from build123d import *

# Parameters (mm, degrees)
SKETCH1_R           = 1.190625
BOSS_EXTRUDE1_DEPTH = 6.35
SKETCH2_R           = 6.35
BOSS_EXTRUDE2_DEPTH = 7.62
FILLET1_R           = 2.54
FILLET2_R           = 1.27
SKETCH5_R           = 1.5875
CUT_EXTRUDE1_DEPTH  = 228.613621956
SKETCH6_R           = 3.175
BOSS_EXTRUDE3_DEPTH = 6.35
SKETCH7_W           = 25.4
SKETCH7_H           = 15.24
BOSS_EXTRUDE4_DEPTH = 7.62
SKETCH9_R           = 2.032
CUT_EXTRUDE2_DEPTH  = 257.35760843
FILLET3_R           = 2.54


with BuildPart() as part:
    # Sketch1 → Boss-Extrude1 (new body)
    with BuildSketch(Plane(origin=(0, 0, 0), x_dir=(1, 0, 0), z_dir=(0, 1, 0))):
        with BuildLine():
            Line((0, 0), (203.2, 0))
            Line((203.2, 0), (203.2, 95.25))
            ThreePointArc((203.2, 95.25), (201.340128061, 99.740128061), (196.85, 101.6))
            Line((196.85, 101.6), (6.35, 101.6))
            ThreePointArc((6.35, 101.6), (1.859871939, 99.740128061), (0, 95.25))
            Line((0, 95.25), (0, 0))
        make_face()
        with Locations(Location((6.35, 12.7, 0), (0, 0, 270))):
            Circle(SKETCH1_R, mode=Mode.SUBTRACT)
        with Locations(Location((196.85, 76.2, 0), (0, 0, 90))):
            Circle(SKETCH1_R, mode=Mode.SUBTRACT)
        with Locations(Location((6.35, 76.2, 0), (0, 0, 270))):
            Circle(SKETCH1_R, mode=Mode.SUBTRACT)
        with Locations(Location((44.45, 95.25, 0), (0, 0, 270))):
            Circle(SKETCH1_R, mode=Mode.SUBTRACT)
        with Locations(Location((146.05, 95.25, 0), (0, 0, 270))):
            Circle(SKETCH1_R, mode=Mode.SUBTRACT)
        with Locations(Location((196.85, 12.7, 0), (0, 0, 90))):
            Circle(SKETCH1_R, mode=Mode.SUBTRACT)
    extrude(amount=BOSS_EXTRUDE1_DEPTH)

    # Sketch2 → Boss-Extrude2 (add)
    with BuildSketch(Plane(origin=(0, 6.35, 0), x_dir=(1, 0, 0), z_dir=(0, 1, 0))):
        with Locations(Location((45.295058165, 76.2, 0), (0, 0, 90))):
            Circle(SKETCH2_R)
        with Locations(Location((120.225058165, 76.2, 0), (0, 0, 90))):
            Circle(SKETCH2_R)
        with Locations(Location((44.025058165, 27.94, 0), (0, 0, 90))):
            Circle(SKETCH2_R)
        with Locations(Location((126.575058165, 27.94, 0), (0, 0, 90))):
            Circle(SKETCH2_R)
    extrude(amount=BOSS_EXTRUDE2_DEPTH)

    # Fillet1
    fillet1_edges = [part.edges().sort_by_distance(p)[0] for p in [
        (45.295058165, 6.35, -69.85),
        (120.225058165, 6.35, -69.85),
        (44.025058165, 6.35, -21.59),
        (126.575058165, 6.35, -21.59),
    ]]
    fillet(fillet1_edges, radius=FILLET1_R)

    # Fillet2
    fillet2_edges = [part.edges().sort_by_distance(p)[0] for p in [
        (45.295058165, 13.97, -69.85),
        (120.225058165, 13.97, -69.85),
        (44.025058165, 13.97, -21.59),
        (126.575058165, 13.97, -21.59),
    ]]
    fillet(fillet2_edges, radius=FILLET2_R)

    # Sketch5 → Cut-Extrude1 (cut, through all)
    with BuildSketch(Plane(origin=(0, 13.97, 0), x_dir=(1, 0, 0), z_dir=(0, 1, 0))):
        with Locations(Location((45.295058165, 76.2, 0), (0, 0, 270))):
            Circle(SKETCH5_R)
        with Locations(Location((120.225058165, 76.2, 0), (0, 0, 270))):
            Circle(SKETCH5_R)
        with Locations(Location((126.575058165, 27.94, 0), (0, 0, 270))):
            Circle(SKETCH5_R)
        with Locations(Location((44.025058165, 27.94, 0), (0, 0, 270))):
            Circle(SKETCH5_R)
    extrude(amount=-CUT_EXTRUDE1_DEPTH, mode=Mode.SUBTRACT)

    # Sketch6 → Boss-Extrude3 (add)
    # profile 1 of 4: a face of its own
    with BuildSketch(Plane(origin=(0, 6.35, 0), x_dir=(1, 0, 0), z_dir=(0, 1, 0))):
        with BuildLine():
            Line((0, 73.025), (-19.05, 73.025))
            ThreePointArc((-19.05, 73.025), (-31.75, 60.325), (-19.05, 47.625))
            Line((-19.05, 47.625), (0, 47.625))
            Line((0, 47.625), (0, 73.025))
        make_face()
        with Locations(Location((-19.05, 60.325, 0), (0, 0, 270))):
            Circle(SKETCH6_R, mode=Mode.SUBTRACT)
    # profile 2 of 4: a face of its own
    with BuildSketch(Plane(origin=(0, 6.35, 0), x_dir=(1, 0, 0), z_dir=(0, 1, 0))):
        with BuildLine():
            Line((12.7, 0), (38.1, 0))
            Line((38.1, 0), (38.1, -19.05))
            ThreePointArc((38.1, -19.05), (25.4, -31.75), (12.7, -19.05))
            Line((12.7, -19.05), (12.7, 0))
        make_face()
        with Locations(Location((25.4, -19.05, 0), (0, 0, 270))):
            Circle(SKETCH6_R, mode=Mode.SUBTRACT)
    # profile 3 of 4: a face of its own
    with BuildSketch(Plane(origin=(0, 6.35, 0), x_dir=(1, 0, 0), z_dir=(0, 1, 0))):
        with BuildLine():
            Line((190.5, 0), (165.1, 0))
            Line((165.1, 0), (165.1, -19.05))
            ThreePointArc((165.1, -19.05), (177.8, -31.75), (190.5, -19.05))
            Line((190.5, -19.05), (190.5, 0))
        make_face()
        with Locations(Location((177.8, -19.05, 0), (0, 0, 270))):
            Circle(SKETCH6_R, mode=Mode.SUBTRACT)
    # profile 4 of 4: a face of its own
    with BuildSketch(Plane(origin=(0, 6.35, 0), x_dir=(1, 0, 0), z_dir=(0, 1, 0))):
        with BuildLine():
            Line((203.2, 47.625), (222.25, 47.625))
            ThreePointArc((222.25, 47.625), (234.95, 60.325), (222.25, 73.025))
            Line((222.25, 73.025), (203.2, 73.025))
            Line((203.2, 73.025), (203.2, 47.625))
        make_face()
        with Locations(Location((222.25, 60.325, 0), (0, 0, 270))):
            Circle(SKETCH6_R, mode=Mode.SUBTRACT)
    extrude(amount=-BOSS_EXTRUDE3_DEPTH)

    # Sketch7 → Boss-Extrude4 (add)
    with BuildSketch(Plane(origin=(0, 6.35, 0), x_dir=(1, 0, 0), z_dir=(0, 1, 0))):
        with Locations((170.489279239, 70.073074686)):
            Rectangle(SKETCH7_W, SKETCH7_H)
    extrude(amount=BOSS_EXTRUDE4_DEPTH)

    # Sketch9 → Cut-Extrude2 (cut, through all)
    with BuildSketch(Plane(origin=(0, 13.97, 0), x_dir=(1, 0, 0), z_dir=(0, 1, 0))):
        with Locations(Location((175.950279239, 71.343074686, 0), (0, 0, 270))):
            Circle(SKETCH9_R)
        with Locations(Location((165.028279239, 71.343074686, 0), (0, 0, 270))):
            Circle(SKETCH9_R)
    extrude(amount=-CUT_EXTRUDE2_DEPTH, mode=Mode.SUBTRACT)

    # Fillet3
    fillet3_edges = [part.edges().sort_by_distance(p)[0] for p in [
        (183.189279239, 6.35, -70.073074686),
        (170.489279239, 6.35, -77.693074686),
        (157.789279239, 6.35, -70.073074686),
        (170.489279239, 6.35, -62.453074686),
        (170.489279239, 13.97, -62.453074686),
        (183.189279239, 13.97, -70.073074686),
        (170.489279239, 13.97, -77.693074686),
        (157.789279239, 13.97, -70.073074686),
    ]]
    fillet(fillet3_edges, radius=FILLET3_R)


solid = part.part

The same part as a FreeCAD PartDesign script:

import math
import FreeCAD as App
import Part
import Sketcher

V = App.Vector
Q = App.Units.Quantity


def edges_at(feature, points):
    """Names of the edges that pass closest to the given points."""
    edges = feature.Shape.Edges
    near = lambda p: min(range(len(edges)), key=lambda i: edges[i].distToShape(Part.Vertex(*p))[0])
    return sorted({f"Edge{near(p) + 1}" for p in points})


def add_polygon(sketch, points):
    """Adds a closed chain of lines whose ends are joined by coincident constraints."""
    first, n = sketch.GeometryCount, len(points)
    for a, b in zip(points, points[1:] + points[:1]):
        sketch.addGeometry(Part.LineSegment(App.Vector(*a, 0), App.Vector(*b, 0)), False)
    for i in range(n):
        sketch.addConstraint(Sketcher.Constraint("Coincident", first + i, 2, first + (i + 1) % n, 1))

doc = App.newDocument("Part")
body = doc.addObject("PartDesign::Body", "Body")

sketch1 = body.newObject("Sketcher::SketchObject", "Sketch")
sketch1.AttachmentSupport = (doc.getObject("XZ_Plane"), [""])
sketch1.MapMode = "FlatFace"
sketch1.addGeometry([
    Part.LineSegment(V(0, 0, 0), V(203.2, 0, 0)),
    Part.LineSegment(V(203.2, 0, 0), V(203.2, -95.25, 0)),
    Part.ArcOfCircle(Part.Circle(V(196.85, -95.25, 0), V(0, 0, 1), 6.35), math.radians(-90), math.radians(0)),
    Part.LineSegment(V(196.85, -101.6, 0), V(6.35, -101.6, 0)),
    Part.ArcOfCircle(Part.Circle(V(6.35, -95.25, 0), V(0, 0, 1), 6.35), math.radians(180), math.radians(270)),
    Part.LineSegment(V(0, -95.25, 0), V(0, 0, 0)),
    Part.Circle(V(6.35, -12.7, 0), V(0, 0, 1), 1.190625),
    Part.Circle(V(196.85, -12.7, 0), V(0, 0, 1), 1.190625),
    Part.Circle(V(6.35, -76.2, 0), V(0, 0, 1), 1.190625),
    Part.Circle(V(44.45, -95.25, 0), V(0, 0, 1), 1.190625),
    Part.Circle(V(146.05, -95.25, 0), V(0, 0, 1), 1.190625),
    Part.Circle(V(196.85, -76.2, 0), V(0, 0, 1), 1.190625),
], False)
sketch1.addConstraint([
    Sketcher.Constraint("Coincident", 0, 2, 1, 1),
    Sketcher.Constraint("Tangent", 1, 2, 2, 2),
    Sketcher.Constraint("Tangent", 2, 1, 3, 1),
    Sketcher.Constraint("Tangent", 3, 2, 4, 2),
    Sketcher.Constraint("Tangent", 4, 1, 5, 1),
    Sketcher.Constraint("Coincident", 5, 2, 0, 1),
    Sketcher.Constraint("Horizontal", 0),
    Sketcher.Constraint("Vertical", 1),
    Sketcher.Constraint("Horizontal", 3),
    Sketcher.Constraint("Vertical", 5),
    Sketcher.Constraint("Coincident", 5, 2, -1, 1),
    Sketcher.Constraint("Equal", 2, 4),
    Sketcher.Constraint("Equal", 6, 7),
    Sketcher.Constraint("Equal", 7, 8),
    Sketcher.Constraint("Equal", 8, 9),
    Sketcher.Constraint("Equal", 9, 10),
    Sketcher.Constraint("Equal", 10, 11),
    Sketcher.Constraint("Horizontal", 6, 3, 7, 3),
    Sketcher.Constraint("Horizontal", 4, 3, 9, 3),
    Sketcher.Constraint("Horizontal", 9, 3, 10, 3),
    Sketcher.Constraint("Horizontal", 8, 3, 11, 3),
    Sketcher.Constraint("Vertical", 4, 3, 6, 3),
    Sketcher.Constraint("Vertical", 2, 3, 7, 3),
    Sketcher.Constraint("Vertical", 6, 3, 8, 3),
    Sketcher.Constraint("Vertical", 7, 3, 11, 3),
    Sketcher.Constraint("DistanceX", 0, 1, 0, 2, Q("8 in")),
    Sketcher.Constraint("Radius", 2, Q("0.25 in")),
    Sketcher.Constraint("Diameter", 6, Q("0.09375 in")),
    Sketcher.Constraint("DistanceY", 8, 3, -1, 1, Q("3 in")),
    Sketcher.Constraint("DistanceY", 2, 1, -1, 1, Q("4 in")),
    Sketcher.Constraint("DistanceX", 9, 3, 2, 3, Q("6 in")),
    Sketcher.Constraint("DistanceX", 10, 3, 2, 3, Q("2 in")),
    Sketcher.Constraint("DistanceY", 6, 3, -1, 1, Q("0.5 in")),
])
pad1 = body.newObject("PartDesign::Pad", "Pad")
pad1.Profile = sketch1
pad1.Length = Q("0.25 in")
pad1.Reversed = True

sketch2 = body.newObject("Sketcher::SketchObject", "Sketch001")
sketch2.AttachmentSupport = (doc.getObject("XZ_Plane"), [""])
sketch2.MapMode = "FlatFace"
sketch2.AttachmentOffset = App.Placement(V(0, 0, -0.25 * 25.4), App.Rotation())
sketch2.addGeometry([
    Part.Circle(V(45.295058, -76.2, 0), V(0, 0, 1), 6.35),
    Part.Circle(V(120.225058, -76.2, 0), V(0, 0, 1), 6.35),
    Part.Circle(V(44.025058, -27.94, 0), V(0, 0, 1), 6.35),
    Part.Circle(V(126.575058, -27.94, 0), V(0, 0, 1), 6.35),
], False)
sketch2.addConstraint([
    Sketcher.Constraint("Equal", 0, 1),
    Sketcher.Constraint("Equal", 1, 2),
    Sketcher.Constraint("Equal", 2, 3),
    Sketcher.Constraint("Horizontal", 0, 3, 1, 3),
    Sketcher.Constraint("Horizontal", 2, 3, 3, 3),
    Sketcher.Constraint("Diameter", 0, Q("0.5 in")),
    Sketcher.Constraint("DistanceY", 0, 3, -1, 1, Q("3 in")),
    Sketcher.Constraint("DistanceX", 2, 3, 1, 3, Q("3 in")),
    Sketcher.Constraint("DistanceY", 2, 3, -1, 1, Q("1.1 in")),
    Sketcher.Constraint("DistanceX", 0, 3, 3, 3, Q("3.2 in")),
    Sketcher.Constraint("DistanceX", 0, 3, 1, 3, Q("2.95 in")),
    Sketcher.Constraint("DistanceX", -1, 1, 0, 3, Q("45.295058 mm")),
])
pad2 = body.newObject("PartDesign::Pad", "Pad001")
pad2.Profile = sketch2
pad2.Length = Q("0.3 in")
pad2.Reversed = True
doc.recompute()

fillet = body.newObject("PartDesign::Fillet", "Fillet")
fillet.Base = (pad2, edges_at(pad2, [
    (45.295, 6.35, -69.85),
    (120.225, 6.35, -69.85),
    (44.025, 6.35, -21.59),
    (126.575, 6.35, -21.59),
]))
fillet.Radius = Q("0.1 in")
doc.recompute()

fillet2 = body.newObject("PartDesign::Fillet", "Fillet001")
fillet2.Base = (fillet, edges_at(fillet, [
    (45.295, 13.97, -69.85),
    (120.225, 13.97, -69.85),
    (44.025, 13.97, -21.59),
    (126.575, 13.97, -21.59),
]))
fillet2.Radius = Q("0.05 in")

sketch3 = body.newObject("Sketcher::SketchObject", "Sketch002")
sketch3.AttachmentSupport = (doc.getObject("XZ_Plane"), [""])
sketch3.MapMode = "FlatFace"
sketch3.AttachmentOffset = App.Placement(V(0, 0, -0.55 * 25.4), App.Rotation())
sketch3.addGeometry([
    Part.Circle(V(45.295058, -76.2, 0), V(0, 0, 1), 1.5875),
    Part.Circle(V(120.225058, -76.2, 0), V(0, 0, 1), 1.5875),
    Part.Circle(V(126.575058, -27.94, 0), V(0, 0, 1), 1.5875),
    Part.Circle(V(44.025058, -27.94, 0), V(0, 0, 1), 1.5875),
], False)
sketch3.addConstraint([
    Sketcher.Constraint("Equal", 0, 1),
    Sketcher.Constraint("Equal", 1, 2),
    Sketcher.Constraint("Equal", 2, 3),
    Sketcher.Constraint("Horizontal", 0, 3, 1, 3),
    Sketcher.Constraint("Horizontal", 2, 3, 3, 3),
    Sketcher.Constraint("Diameter", 0, Q("0.125 in")),
    Sketcher.Constraint("DistanceY", 0, 3, -1, 1, Q("3 in")),
    Sketcher.Constraint("DistanceX", 3, 3, 1, 3, Q("3 in")),
    Sketcher.Constraint("DistanceY", 2, 3, -1, 1, Q("1.1 in")),
    Sketcher.Constraint("DistanceX", 0, 3, 2, 3, Q("3.2 in")),
    Sketcher.Constraint("DistanceX", 0, 3, 1, 3, Q("2.95 in")),
    Sketcher.Constraint("DistanceX", -1, 1, 0, 3, Q("45.295058 mm")),
])
pocket1 = body.newObject("PartDesign::Pocket", "Pocket")
pocket1.Profile = sketch3
pocket1.Type = "ThroughAll"
pocket1.Reversed = True

sketch4 = body.newObject("Sketcher::SketchObject", "Sketch003")
sketch4.AttachmentSupport = (doc.getObject("XZ_Plane"), [""])
sketch4.MapMode = "FlatFace"
sketch4.AttachmentOffset = App.Placement(V(0, 0, -0.25 * 25.4), App.Rotation())
sketch4.addGeometry([
    Part.LineSegment(V(0, -73.025, 0), V(-19.05, -73.025, 0)),
    Part.ArcOfCircle(Part.Circle(V(-19.05, -60.325, 0), V(0, 0, 1), 12.7), math.radians(90), math.radians(270)),
    Part.LineSegment(V(-19.05, -47.625, 0), V(0, -47.625, 0)),
    Part.LineSegment(V(0, -47.625, 0), V(0, -73.025, 0)),
    Part.Circle(V(-19.05, -60.325, 0), V(0, 0, 1), 3.175),
    Part.LineSegment(V(38.1, 0, 0), V(12.7, 0, 0)),
    Part.LineSegment(V(12.7, 0, 0), V(12.7, 19.05, 0)),
    Part.ArcOfCircle(Part.Circle(V(25.4, 19.05, 0), V(0, 0, 1), 12.7), math.radians(0), math.radians(180)),
    Part.LineSegment(V(38.1, 19.05, 0), V(38.1, 0, 0)),
    Part.Circle(V(25.4, 19.05, 0), V(0, 0, 1), 3.175),
    Part.LineSegment(V(190.5, 0, 0), V(165.1, 0, 0)),
    Part.LineSegment(V(165.1, 0, 0), V(165.1, 19.05, 0)),
    Part.ArcOfCircle(Part.Circle(V(177.8, 19.05, 0), V(0, 0, 1), 12.7), math.radians(0), math.radians(180)),
    Part.LineSegment(V(190.5, 19.05, 0), V(190.5, 0, 0)),
    Part.Circle(V(177.8, 19.05, 0), V(0, 0, 1), 3.175),
    Part.LineSegment(V(203.2, -47.625, 0), V(222.25, -47.625, 0)),
    Part.ArcOfCircle(Part.Circle(V(222.25, -60.325, 0), V(0, 0, 1), 12.7), math.radians(-90), math.radians(90)),
    Part.LineSegment(V(222.25, -73.025, 0), V(203.2, -73.025, 0)),
    Part.LineSegment(V(203.2, -73.025, 0), V(203.2, -47.625, 0)),
    Part.Circle(V(222.25, -60.325, 0), V(0, 0, 1), 3.175),
], False)
sketch4.addConstraint([
    Sketcher.Constraint("Tangent", 0, 2, 1, 2),
    Sketcher.Constraint("Tangent", 1, 1, 2, 1),
    Sketcher.Constraint("Coincident", 2, 2, 3, 1),
    Sketcher.Constraint("Coincident", 3, 2, 0, 1),
    Sketcher.Constraint("Coincident", 5, 2, 6, 1),
    Sketcher.Constraint("Tangent", 6, 2, 7, 2),
    Sketcher.Constraint("Tangent", 7, 1, 8, 1),
    Sketcher.Constraint("Coincident", 8, 2, 5, 1),
    Sketcher.Constraint("Coincident", 10, 2, 11, 1),
    Sketcher.Constraint("Tangent", 11, 2, 12, 2),
    Sketcher.Constraint("Tangent", 12, 1, 13, 1),
    Sketcher.Constraint("Coincident", 13, 2, 10, 1),
    Sketcher.Constraint("Tangent", 15, 2, 16, 2),
    Sketcher.Constraint("Tangent", 16, 1, 17, 1),
    Sketcher.Constraint("Coincident", 17, 2, 18, 1),
    Sketcher.Constraint("Coincident", 18, 2, 15, 1),
    Sketcher.Constraint("Horizontal", 0),
    Sketcher.Constraint("Horizontal", 2),
    Sketcher.Constraint("Vertical", 3),
    Sketcher.Constraint("Horizontal", 5),
    Sketcher.Constraint("Vertical", 6),
    Sketcher.Constraint("Vertical", 8),
    Sketcher.Constraint("Horizontal", 10),
    Sketcher.Constraint("Vertical", 11),
    Sketcher.Constraint("Vertical", 13),
    Sketcher.Constraint("Horizontal", 15),
    Sketcher.Constraint("Horizontal", 17),
    Sketcher.Constraint("Vertical", 18),
    Sketcher.Constraint("Coincident", 4, 3, 1, 3),
    Sketcher.Constraint("Coincident", 9, 3, 7, 3),
    Sketcher.Constraint("Coincident", 14, 3, 12, 3),
    Sketcher.Constraint("Coincident", 19, 3, 16, 3),
    Sketcher.Constraint("Equal", 1, 7),
    Sketcher.Constraint("Equal", 4, 9),
    Sketcher.Constraint("Equal", 7, 12),
    Sketcher.Constraint("Equal", 9, 14),
    Sketcher.Constraint("Equal", 12, 16),
    Sketcher.Constraint("Equal", 14, 19),
    Sketcher.Constraint("PointOnObject", 2, 2, -2),
    Sketcher.Constraint("PointOnObject", 5, 2, -1),
    Sketcher.Constraint("PointOnObject", 10, 2, -1),
    Sketcher.Constraint("Horizontal", 9, 3, 12, 3),
    Sketcher.Constraint("Horizontal", 4, 3, 16, 3),
    Sketcher.Constraint("Equal", 2, 15),
    Sketcher.Constraint("Equal", 17, 6),
    Sketcher.Constraint("Radius", 1, Q("0.5 in")),
    Sketcher.Constraint("Diameter", 4, Q("0.25 in")),
    Sketcher.Constraint("DistanceX", -1, 1, 7, 3, Q("1 in")),
    Sketcher.Constraint("DistanceX", -1, 1, 12, 3, Q("7 in")),
    Sketcher.Constraint("DistanceX", -1, 1, 17, 2, Q("8 in")),
    Sketcher.Constraint("DistanceX", 0, 2, 0, 1, Q("0.75 in")),
    Sketcher.Constraint("DistanceY", 1, 3, -1, 1, Q("2.375 in")),
])
pad3 = body.newObject("PartDesign::Pad", "Pad002")
pad3.Profile = sketch4
pad3.Length = Q("0.25 in")

sketch5 = body.newObject("Sketcher::SketchObject", "Sketch004")
sketch5.AttachmentSupport = (doc.getObject("XZ_Plane"), [""])
sketch5.MapMode = "FlatFace"
sketch5.AttachmentOffset = App.Placement(V(0, 0, -0.25 * 25.4), App.Rotation())
add_polygon(sketch5, [(157.789279, -77.693075), (157.789279, -62.453075), (183.189279, -62.453075), (183.189279, -77.693075)])
sketch5.addConstraint([
    Sketcher.Constraint("Vertical", 0),
    Sketcher.Constraint("Horizontal", 1),
    Sketcher.Constraint("Vertical", 2),
    Sketcher.Constraint("Horizontal", 3),
    Sketcher.Constraint("DistanceX", 1, 1, 1, 2, Q("1 in")),
    Sketcher.Constraint("DistanceY", 0, 1, 0, 2, Q("0.6 in")),
    Sketcher.Constraint("DistanceX", -1, 1, 0, 2, Q("157.789279 mm")),
    Sketcher.Constraint("DistanceY", 0, 2, -1, 1, Q("62.453075 mm")),
])
pad4 = body.newObject("PartDesign::Pad", "Pad003")
pad4.Profile = sketch5
pad4.Length = Q("0.3 in")
pad4.Reversed = True

sketch6 = body.newObject("Sketcher::SketchObject", "Sketch005")
sketch6.AttachmentSupport = (doc.getObject("XZ_Plane"), [""])
sketch6.MapMode = "FlatFace"
sketch6.AttachmentOffset = App.Placement(V(0, 0, -0.55 * 25.4), App.Rotation())
sketch6.addGeometry([
    Part.Circle(V(175.950279, -71.343075, 0), V(0, 0, 1), 2.032),
    Part.Circle(V(165.028279, -71.343075, 0), V(0, 0, 1), 2.032),
], False)
sketch6.addConstraint([
    Sketcher.Constraint("Equal", 0, 1),
    Sketcher.Constraint("Horizontal", 0, 3, 1, 3),
    Sketcher.Constraint("Diameter", 0, Q("0.16 in")),
    Sketcher.Constraint("DistanceX", 1, 3, 0, 3, Q("0.43 in")),
    Sketcher.Constraint("DistanceX", -1, 1, 0, 3, Q("175.950279 mm")),
    Sketcher.Constraint("DistanceY", 0, 3, -1, 1, Q("71.343075 mm")),
])
pocket2 = body.newObject("PartDesign::Pocket", "Pocket001")
pocket2.Profile = sketch6
pocket2.Type = "ThroughAll"
pocket2.Reversed = True
doc.recompute()

fillet3 = body.newObject("PartDesign::Fillet", "Fillet002")
fillet3.Base = (pocket2, edges_at(pocket2, [
    (183.189, 6.35, -70.073),
    (170.489, 6.35, -77.693),
    (157.789, 6.35, -70.073),
    (170.489, 6.35, -62.453),
    (170.489, 13.97, -62.453),
    (183.189, 13.97, -70.073),
    (170.489, 13.97, -77.693),
    (157.789, 13.97, -70.073),
]))
fillet3.Radius = Q("0.1 in")

doc.recompute()
